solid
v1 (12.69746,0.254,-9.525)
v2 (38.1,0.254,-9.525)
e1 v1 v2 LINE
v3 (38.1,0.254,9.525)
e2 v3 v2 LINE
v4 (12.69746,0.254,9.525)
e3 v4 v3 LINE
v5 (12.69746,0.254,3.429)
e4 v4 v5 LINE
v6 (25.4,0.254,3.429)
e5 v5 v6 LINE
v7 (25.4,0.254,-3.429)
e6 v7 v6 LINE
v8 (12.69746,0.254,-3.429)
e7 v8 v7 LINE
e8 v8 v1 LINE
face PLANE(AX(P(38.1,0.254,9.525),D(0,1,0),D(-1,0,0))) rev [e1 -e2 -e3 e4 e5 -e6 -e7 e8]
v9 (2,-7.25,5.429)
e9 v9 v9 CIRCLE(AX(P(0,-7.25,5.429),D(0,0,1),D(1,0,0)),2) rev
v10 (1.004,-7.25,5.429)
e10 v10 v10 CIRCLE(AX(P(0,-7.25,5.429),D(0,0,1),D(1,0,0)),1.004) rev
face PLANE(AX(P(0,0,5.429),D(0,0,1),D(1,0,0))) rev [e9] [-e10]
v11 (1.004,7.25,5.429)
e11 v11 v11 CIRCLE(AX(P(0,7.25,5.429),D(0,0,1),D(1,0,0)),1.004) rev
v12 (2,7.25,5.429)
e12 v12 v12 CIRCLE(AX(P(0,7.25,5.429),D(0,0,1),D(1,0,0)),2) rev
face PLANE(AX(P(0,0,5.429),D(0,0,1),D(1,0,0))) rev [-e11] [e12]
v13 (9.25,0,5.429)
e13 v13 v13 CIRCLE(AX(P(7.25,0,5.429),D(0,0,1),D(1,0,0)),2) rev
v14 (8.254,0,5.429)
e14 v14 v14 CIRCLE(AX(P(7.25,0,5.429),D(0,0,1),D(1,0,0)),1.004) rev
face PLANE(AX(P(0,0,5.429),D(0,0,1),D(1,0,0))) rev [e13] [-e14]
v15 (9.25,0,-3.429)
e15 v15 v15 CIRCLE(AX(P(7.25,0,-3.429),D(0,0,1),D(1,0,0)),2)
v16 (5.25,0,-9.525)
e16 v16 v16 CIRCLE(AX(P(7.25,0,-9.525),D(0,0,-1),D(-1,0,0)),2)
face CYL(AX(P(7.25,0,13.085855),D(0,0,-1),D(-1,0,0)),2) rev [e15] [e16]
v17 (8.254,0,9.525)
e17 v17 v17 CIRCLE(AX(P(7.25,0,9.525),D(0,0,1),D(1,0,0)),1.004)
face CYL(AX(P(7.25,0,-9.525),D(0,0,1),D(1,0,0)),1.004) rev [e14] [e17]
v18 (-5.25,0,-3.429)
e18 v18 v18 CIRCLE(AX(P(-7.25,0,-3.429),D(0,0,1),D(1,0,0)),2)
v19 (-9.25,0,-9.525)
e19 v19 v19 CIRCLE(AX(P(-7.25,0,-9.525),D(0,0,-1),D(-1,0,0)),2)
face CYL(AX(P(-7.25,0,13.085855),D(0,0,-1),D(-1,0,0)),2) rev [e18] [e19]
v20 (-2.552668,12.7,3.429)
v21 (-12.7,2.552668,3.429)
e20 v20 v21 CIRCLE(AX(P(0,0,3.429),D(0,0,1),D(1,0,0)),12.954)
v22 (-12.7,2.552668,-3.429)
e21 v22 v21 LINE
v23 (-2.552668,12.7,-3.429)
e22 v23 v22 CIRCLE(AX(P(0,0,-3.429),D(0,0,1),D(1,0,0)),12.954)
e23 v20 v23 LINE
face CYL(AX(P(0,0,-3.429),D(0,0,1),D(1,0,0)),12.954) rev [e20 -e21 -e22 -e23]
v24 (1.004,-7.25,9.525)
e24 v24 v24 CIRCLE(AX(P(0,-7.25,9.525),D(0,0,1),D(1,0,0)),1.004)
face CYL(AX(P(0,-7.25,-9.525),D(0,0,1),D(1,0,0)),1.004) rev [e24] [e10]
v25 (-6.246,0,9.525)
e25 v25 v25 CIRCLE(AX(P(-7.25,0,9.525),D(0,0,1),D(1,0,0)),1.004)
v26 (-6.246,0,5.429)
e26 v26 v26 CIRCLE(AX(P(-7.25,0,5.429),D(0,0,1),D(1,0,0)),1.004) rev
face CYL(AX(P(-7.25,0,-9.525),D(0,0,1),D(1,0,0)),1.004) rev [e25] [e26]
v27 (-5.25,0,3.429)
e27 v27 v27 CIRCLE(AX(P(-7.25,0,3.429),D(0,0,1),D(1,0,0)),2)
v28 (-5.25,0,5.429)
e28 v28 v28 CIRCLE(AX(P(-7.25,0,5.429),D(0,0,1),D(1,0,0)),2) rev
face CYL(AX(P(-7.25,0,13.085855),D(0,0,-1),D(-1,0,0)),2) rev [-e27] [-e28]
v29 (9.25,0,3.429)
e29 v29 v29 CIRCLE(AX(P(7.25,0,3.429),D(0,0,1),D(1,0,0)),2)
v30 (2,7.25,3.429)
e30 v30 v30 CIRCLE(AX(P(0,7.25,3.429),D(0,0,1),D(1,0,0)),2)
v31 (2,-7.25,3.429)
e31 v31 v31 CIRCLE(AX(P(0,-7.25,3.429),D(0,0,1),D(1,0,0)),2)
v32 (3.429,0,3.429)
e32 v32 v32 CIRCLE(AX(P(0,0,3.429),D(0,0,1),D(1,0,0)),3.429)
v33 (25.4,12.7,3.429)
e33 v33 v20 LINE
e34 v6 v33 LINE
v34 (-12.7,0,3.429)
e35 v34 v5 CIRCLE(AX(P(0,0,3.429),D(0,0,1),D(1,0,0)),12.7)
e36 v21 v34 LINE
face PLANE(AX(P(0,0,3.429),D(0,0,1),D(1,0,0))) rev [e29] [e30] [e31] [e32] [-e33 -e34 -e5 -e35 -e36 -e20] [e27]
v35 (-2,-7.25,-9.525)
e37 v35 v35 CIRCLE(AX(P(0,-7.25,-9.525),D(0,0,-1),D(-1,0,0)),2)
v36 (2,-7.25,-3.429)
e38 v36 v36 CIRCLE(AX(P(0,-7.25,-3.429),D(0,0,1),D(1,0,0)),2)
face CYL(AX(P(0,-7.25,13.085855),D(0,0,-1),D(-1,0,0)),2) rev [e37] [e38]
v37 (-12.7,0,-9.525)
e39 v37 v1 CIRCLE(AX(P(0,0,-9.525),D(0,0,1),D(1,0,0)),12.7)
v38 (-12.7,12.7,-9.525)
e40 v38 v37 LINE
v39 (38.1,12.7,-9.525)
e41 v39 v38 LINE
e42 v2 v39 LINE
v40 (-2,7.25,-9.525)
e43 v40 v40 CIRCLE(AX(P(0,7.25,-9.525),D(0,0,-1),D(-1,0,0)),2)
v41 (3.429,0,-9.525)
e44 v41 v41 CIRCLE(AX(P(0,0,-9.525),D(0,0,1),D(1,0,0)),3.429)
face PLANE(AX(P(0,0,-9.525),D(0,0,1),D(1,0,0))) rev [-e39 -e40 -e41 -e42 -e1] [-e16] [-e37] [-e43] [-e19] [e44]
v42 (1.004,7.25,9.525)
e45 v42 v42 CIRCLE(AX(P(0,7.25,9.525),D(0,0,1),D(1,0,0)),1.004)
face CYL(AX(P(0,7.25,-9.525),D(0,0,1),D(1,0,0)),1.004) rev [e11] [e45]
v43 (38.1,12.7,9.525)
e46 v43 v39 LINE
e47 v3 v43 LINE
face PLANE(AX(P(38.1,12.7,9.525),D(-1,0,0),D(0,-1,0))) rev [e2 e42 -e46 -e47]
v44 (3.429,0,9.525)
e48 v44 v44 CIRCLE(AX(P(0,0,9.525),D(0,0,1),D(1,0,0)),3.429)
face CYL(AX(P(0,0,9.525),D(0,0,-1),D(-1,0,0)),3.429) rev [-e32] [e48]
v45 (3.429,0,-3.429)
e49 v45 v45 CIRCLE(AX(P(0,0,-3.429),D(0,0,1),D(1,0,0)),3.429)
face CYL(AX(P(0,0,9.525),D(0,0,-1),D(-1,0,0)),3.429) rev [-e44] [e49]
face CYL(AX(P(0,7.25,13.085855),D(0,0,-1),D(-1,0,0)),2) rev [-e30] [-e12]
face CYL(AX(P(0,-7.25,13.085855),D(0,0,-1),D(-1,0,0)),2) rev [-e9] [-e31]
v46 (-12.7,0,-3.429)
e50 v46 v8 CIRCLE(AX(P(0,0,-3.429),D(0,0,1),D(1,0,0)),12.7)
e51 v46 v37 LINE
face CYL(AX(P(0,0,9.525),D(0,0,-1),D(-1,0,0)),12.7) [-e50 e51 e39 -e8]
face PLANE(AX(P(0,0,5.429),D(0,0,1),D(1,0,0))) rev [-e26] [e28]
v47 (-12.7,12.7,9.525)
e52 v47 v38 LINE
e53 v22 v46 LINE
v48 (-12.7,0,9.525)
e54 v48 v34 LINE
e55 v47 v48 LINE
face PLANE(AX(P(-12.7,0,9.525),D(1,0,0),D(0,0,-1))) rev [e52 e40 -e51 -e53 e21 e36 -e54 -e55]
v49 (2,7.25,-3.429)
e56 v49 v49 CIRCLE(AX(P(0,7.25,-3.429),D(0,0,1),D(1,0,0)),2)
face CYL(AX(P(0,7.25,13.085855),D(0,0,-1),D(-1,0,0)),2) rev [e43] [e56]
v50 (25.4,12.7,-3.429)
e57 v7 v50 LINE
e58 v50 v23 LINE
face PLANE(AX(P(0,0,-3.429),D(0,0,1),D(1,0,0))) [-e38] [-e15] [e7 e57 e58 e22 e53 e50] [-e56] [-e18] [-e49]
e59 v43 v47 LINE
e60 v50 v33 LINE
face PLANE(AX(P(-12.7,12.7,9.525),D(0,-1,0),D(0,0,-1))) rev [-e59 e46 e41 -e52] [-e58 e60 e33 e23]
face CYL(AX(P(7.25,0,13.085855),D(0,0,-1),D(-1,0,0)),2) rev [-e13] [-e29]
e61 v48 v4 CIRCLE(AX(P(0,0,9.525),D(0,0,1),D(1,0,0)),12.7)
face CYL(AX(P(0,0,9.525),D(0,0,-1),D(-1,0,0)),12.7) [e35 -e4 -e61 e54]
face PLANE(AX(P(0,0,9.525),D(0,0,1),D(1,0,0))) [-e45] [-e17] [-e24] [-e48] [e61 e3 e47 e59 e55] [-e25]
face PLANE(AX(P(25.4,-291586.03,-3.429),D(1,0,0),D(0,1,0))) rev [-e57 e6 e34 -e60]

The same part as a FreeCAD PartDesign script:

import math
import FreeCAD as App
import Part
import Sketcher

V = App.Vector
Q = App.Units.Quantity

doc = App.newDocument("Part")
body = doc.addObject("PartDesign::Body", "Body")

sketch1 = doc.addObject("Sketcher::SketchObject", "Sketch")
body.addObject(sketch1)
sketch1.AttachmentSupport = (doc.XY_Plane, [""])
sketch1.MapMode = "FlatFace"
sketch1.addGeometry([
    Part.LineSegment(V(-12.7, 12.7, 0), V(-12.7, 0, 0)),
    Part.ArcOfCircle(Part.Circle(V(0, 0, 0), V(0, 0, 1), 12.7), math.radians(180), math.radians(361)),
    Part.LineSegment(V(12.7, 0.3, 0), V(38.1, 0.3, 0)),
    Part.LineSegment(V(38.1, 0.3, 0), V(38.1, 12.7, 0)),
    Part.LineSegment(V(38.1, 12.7, 0), V(-12.7, 12.7, 0)),
    Part.Circle(V(0, 0, 0), V(0, 0, 1), 3.4),
], False)
sketch1.addConstraint([
    Sketcher.Constraint("Tangent", 0, 2, 1, 1),
    Sketcher.Constraint("Coincident", 1, 2, 2, 1),
    Sketcher.Constraint("Coincident", 2, 2, 3, 1),
    Sketcher.Constraint("Coincident", 3, 2, 4, 1),
    Sketcher.Constraint("Coincident", 4, 2, 0, 1),
    Sketcher.Constraint("Vertical", 0),
    Sketcher.Constraint("Horizontal", 2),
    Sketcher.Constraint("Vertical", 3),
    Sketcher.Constraint("Horizontal", 4),
    Sketcher.Constraint("Coincident", 1, 3, -1, 1),
    Sketcher.Constraint("Coincident", 5, 3, -1, 1),
    Sketcher.Constraint("Radius", 1, Q("0.5 in")),
    Sketcher.Constraint("Diameter", 5, Q("0.27 in")),
    Sketcher.Constraint("DistanceX", 4, 2, 4, 1, Q("2 in")),
    Sketcher.Constraint("DistanceY", 0, 2, 0, 1, Q("0.5 in")),
    Sketcher.Constraint("DistanceY", 3, 1, 3, 2, Q("0.49 in")),
])
pad1 = doc.addObject("PartDesign::Pad", "Pad")
body.addObject(pad1)
pad1.Profile = sketch1
pad1.Length = Q("0.75 in")
pad1.Midplane = True

sketch2 = doc.addObject("Sketcher::SketchObject", "Sketch001")
body.addObject(sketch2)
sketch2.AttachmentSupport = (doc.XY_Plane, [""])
sketch2.MapMode = "FlatFace"
sketch2.addGeometry([
    Part.LineSegment(V(25.4, 0.25, 0), V(25.4, 12.7, 0)),
    Part.LineSegment(V(25.4, 12.7, 0), V(0, 12.7, 0)),
    Part.LineSegment(V(0, 12.7, 0), V(0, 12.95, 0)),
    Part.ArcOfCircle(Part.Circle(V(0, 0, 0), V(0, 0, 1), 12.95), math.radians(90), math.radians(361)),
    Part.LineSegment(V(12.95, 0.25, 0), V(25.4, 0.25, 0)),
], False)
sketch2.addConstraint([
    Sketcher.Constraint("Coincident", 0, 2, 1, 1),
    Sketcher.Constraint("Coincident", 1, 2, 2, 1),
    Sketcher.Constraint("Coincident", 2, 2, 3, 1),
    Sketcher.Constraint("Coincident", 3, 2, 4, 1),
    Sketcher.Constraint("Coincident", 4, 2, 0, 1),
    Sketcher.Constraint("Vertical", 0),
    Sketcher.Constraint("Horizontal", 1),
    Sketcher.Constraint("Vertical", 2),
    Sketcher.Constraint("Horizontal", 4),
    Sketcher.Constraint("Coincident", 3, 3, -1, 1),
    Sketcher.Constraint("PointOnObject", 1, 2, -2),
    Sketcher.Constraint("DistanceX", 1, 2, 1, 1, Q("1 in")),
    Sketcher.Constraint("Radius", 3, Q("0.51 in")),
    Sketcher.Constraint("DistanceY", 0, 1, 0, 2, Q("0.49 in")),
    Sketcher.Constraint("DistanceY", 2, 1, 2, 2, Q("0.01 in")),
])
pocket1 = doc.addObject("PartDesign::Pocket", "Pocket")
body.addObject(pocket1)
pocket1.Profile = sketch2
pocket1.Length = Q("0.27 in")
pocket1.Midplane = True

sketch3 = doc.addObject("Sketcher::SketchObject", "Sketch002")
body.addObject(sketch3)
sketch3.AttachmentSupport = (doc.XY_Plane, [""])
sketch3.MapMode = "FlatFace"
sketch3.AttachmentOffset = App.Placement(V(0, 0, 0.375 * 25.4), App.Rotation())
sketch3.addGeometry([
    Part.Circle(V(7.2, 0, 0), V(0, 0, 1), 1),
    Part.Circle(V(0, -7.2, 0), V(0, 0, 1), 1),
    Part.Circle(V(-7.2, 0, 0), V(0, 0, 1), 1),
    Part.Circle(V(0, 7.2, 0), V(0, 0, 1), 1),
], False)
sketch3.addConstraint([
    Sketcher.Constraint("Equal", 0, 1),
    Sketcher.Constraint("Equal", 1, 2),
    Sketcher.Constraint("Equal", 2, 3),
    Sketcher.Constraint("Symmetric", 0, 3, 2, 3, -1, 1),
    Sketcher.Constraint("Symmetric", 1, 3, 3, 3, -1, 1),
    Sketcher.Constraint("PointOnObject", 0, 3, -1),
    Sketcher.Constraint("PointOnObject", 1, 3, -2),
    Sketcher.Constraint("Diameter", 0, 2.008),
    Sketcher.Constraint("DistanceX", -1, 1, 0, 3, 7.25),
    Sketcher.Constraint("DistanceY", 1, 3, -1, 1, 7.25),
])
pocket2 = doc.addObject("PartDesign::Pocket", "Pocket001")
body.addObject(pocket2)
pocket2.Profile = sketch3
pocket2.Type = "ThroughAll"

sketch4 = doc.addObject("Sketcher::SketchObject", "Sketch003")
body.addObject(sketch4)
sketch4.AttachmentSupport = (doc.XY_Plane, [""])
sketch4.MapMode = "FlatFace"
sketch4.AttachmentOffset = App.Placement(V(0, 0, -0.375 * 25.4), App.Rotation())
sketch4.addGeometry([
    Part.Circle(V(-7.2, 0, 0), V(0, 0, 1), 2),
    Part.Circle(V(0, -7.2, 0), V(0, 0, 1), 2),
    Part.Circle(V(7.2, 0, 0), V(0, 0, 1), 2),
    Part.Circle(V(0, 7.2, 0), V(0, 0, 1), 2),
], False)
sketch4.addConstraint([
    Sketcher.Constraint("Equal", 0, 1),
    Sketcher.Constraint("Equal", 1, 2),
    Sketcher.Constraint("Equal", 2, 3),
    Sketcher.Constraint("Symmetric", 0, 3, 2, 3, -1, 1),
    Sketcher.Constraint("Symmetric", 1, 3, 3, 3, -1, 1),
    Sketcher.Constraint("PointOnObject", 0, 3, -1),
    Sketcher.Constraint("PointOnObject", 1, 3, -2),
    Sketcher.Constraint("Diameter", 0, 4.0),
    Sketcher.Constraint("DistanceX", 0, 3, -1, 1, 7.25),
    Sketcher.Constraint("DistanceY", 1, 3, -1, 1, 7.25),
])
pocket3 = doc.addObject("PartDesign::Pocket", "Pocket002")
body.addObject(pocket3)
pocket3.Profile = sketch4
pocket3.Length = 14.954
pocket3.Reversed = True

doc.recompute()
